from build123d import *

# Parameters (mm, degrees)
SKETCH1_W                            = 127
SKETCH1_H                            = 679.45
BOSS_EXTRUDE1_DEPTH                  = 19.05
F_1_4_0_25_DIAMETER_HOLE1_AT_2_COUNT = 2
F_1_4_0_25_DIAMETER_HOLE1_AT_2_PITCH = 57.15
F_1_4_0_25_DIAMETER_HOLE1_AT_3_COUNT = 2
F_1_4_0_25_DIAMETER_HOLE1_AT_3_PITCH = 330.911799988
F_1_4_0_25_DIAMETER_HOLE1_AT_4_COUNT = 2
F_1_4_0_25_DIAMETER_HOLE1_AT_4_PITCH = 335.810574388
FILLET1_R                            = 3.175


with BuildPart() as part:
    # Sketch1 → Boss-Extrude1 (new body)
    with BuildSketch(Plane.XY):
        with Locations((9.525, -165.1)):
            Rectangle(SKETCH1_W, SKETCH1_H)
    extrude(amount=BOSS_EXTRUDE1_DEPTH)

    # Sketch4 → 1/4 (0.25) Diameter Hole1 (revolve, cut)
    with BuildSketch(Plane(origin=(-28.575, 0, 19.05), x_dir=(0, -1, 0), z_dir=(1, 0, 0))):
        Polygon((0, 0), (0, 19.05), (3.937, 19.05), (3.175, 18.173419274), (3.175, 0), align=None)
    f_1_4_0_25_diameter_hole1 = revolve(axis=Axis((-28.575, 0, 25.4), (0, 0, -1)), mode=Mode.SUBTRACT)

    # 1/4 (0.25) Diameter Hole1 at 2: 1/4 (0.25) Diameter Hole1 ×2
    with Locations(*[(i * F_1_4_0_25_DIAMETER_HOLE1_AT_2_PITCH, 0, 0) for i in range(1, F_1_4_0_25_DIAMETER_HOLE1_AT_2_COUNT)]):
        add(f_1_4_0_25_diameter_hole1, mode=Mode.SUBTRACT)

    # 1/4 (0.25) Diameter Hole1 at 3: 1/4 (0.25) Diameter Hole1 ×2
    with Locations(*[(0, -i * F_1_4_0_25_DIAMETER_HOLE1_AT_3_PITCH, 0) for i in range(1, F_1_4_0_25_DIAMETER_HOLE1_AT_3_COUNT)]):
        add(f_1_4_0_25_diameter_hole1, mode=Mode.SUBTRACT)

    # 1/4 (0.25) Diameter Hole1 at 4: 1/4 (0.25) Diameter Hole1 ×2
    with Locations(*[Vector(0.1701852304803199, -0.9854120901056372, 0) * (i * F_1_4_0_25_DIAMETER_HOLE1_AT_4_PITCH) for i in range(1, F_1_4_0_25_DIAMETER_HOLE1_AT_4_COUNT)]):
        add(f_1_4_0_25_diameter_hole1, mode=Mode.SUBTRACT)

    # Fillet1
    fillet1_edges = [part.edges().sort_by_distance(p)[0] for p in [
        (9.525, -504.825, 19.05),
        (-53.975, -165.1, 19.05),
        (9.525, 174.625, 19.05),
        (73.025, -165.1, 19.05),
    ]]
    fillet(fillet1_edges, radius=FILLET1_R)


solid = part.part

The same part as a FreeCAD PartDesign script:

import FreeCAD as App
import Part
import Sketcher
Q = App.Units.Quantity


def edges_at(feature, points):
    """Names of the edges that pass closest to the given points."""
    edges = feature.Shape.Edges
    near = lambda p: min(range(len(edges)), key=lambda i: edges[i].distToShape(Part.Vertex(*p))[0])
    return sorted({f"Edge{near(p) + 1}" for p in points})


def add_polygon(sketch, points):
    """Adds a closed chain of lines whose ends are joined by coincident constraints."""
    first, n = sketch.GeometryCount, len(points)
    for a, b in zip(points, points[1:] + points[:1]):
        sketch.addGeometry(Part.LineSegment(App.Vector(*a, 0), App.Vector(*b, 0)), False)
    for i in range(n):
        sketch.addConstraint(Sketcher.Constraint("Coincident", first + i, 2, first + (i + 1) % n, 1))

doc = App.newDocument("Part")
body = doc.addObject("PartDesign::Body", "Body")

# Sketch on XY plane
sketch1 = doc.addObject("Sketcher::SketchObject", "Sketch")
body.addObject(sketch1)
sketch1.AttachmentSupport = (doc.XY_Plane, [""])
sketch1.MapMode = "FlatFace"
add_polygon(sketch1, [(-54, 175), (-54, -505), (73, -505), (73, 175)])  # lines 0-3
sketch1.addConstraint([
    Sketcher.Constraint("Vertical", 0),
    Sketcher.Constraint("Horizontal", 1),
    Sketcher.Constraint("Vertical", 2),
    Sketcher.Constraint("Horizontal", 3),
    Sketcher.Constraint("DistanceX", 1, 1, 1, 2, Q("5 in")),
    Sketcher.Constraint("DistanceY", 0, 2, 0, 1, Q("26.75 in")),
    Sketcher.Constraint("DistanceX", 0, 2, -1, 1, Q("2.125 in")),
    Sketcher.Constraint("DistanceY", 0, 2, -1, 1, Q("19.875 in")),
])
pad1 = doc.addObject("PartDesign::Pad", "Pad")
body.addObject(pad1)
pad1.Profile = sketch1
pad1.Length = Q("0.75 in")

# Sketch on YZ plane
sketch2 = doc.addObject("Sketcher::SketchObject", "Sketch001")
body.addObject(sketch2)
sketch2.AttachmentSupport = (doc.YZ_Plane, [""])
sketch2.MapMode = "FlatFace"
sketch2.AttachmentOffset = App.Placement(App.Vector(0, 0, -1.125 * 25.4), App.Rotation())
add_polygon(sketch2, [(0, 0), (0, 19.1), (-3.2, 19.1), (-3.2, 0.9), (-3.9, 0)])  # lines 0-4
sketch2.addConstraint([
    Sketcher.Constraint("Vertical", 0),
    Sketcher.Constraint("Horizontal", 1),
    Sketcher.Constraint("Vertical", 2),
    Sketcher.Constraint("Horizontal", 4),
    Sketcher.Constraint("Coincident", 4, 2, -1, 1),
    Sketcher.Constraint("Angle", 3, Q("-131 deg")),
    Sketcher.Constraint("DistanceY", 0, 1, 0, 2, Q("0.75 in")),
    Sketcher.Constraint("DistanceX", 1, 2, 1, 1, Q("0.125 in")),
    Sketcher.Constraint("DistanceX", 4, 1, 4, 2, Q("0.155 in")),
])
groove = doc.addObject("PartDesign::Groove", "Groove")
body.addObject(groove)
groove.Profile = sketch2
groove.ReferenceAxis = (sketch2, ["V_Axis"])
groove.Angle = 360
doc.recompute()

linearpattern = doc.addObject("PartDesign::LinearPattern", "LinearPattern")
body.addObject(linearpattern)
linearpattern.Originals = [groove]
linearpattern.Direction = (doc.X_Axis, [""])
linearpattern.Mode = "offset"
linearpattern.Offset = Q("2.25 in")
linearpattern.Occurrences = 2
body.Tip = linearpattern
doc.recompute()

linearpattern2 = doc.addObject("PartDesign::LinearPattern", "LinearPattern001")
body.addObject(linearpattern2)
linearpattern2.Originals = [groove]
linearpattern2.Direction = (doc.Y_Axis, [""])
linearpattern2.Mode = "offset"
linearpattern2.Offset = 330.9118
linearpattern2.Occurrences = 2
linearpattern2.Reversed = True
body.Tip = linearpattern2
doc.recompute()

datumline = doc.addObject("PartDesign::Line", "DatumLine")
body.addObject(datumline)
datumline.Placement = App.Placement(App.Vector(0, 0, 0), App.Rotation(App.Vector(0, 0, 1), App.Vector(0.17018523, -0.98541209, 0)))
linearpattern3 = doc.addObject("PartDesign::LinearPattern", "LinearPattern002")
body.addObject(linearpattern3)
linearpattern3.Originals = [groove]
linearpattern3.Direction = (datumline, [""])
linearpattern3.Mode = "offset"
linearpattern3.Offset = 335.810574
linearpattern3.Occurrences = 2
body.Tip = linearpattern3
doc.recompute()

fillet = doc.addObject("PartDesign::Fillet", "Fillet")
body.addObject(fillet)
fillet.Base = (linearpattern3, edges_at(linearpattern3, [
    (9.525, -504.825, 19.05),
    (-53.975, -165.1, 19.05),
    (9.525, 174.625, 19.05),
    (73.025, -165.1, 19.05),
]))
fillet.Radius = Q("0.125 in")

doc.recompute()
